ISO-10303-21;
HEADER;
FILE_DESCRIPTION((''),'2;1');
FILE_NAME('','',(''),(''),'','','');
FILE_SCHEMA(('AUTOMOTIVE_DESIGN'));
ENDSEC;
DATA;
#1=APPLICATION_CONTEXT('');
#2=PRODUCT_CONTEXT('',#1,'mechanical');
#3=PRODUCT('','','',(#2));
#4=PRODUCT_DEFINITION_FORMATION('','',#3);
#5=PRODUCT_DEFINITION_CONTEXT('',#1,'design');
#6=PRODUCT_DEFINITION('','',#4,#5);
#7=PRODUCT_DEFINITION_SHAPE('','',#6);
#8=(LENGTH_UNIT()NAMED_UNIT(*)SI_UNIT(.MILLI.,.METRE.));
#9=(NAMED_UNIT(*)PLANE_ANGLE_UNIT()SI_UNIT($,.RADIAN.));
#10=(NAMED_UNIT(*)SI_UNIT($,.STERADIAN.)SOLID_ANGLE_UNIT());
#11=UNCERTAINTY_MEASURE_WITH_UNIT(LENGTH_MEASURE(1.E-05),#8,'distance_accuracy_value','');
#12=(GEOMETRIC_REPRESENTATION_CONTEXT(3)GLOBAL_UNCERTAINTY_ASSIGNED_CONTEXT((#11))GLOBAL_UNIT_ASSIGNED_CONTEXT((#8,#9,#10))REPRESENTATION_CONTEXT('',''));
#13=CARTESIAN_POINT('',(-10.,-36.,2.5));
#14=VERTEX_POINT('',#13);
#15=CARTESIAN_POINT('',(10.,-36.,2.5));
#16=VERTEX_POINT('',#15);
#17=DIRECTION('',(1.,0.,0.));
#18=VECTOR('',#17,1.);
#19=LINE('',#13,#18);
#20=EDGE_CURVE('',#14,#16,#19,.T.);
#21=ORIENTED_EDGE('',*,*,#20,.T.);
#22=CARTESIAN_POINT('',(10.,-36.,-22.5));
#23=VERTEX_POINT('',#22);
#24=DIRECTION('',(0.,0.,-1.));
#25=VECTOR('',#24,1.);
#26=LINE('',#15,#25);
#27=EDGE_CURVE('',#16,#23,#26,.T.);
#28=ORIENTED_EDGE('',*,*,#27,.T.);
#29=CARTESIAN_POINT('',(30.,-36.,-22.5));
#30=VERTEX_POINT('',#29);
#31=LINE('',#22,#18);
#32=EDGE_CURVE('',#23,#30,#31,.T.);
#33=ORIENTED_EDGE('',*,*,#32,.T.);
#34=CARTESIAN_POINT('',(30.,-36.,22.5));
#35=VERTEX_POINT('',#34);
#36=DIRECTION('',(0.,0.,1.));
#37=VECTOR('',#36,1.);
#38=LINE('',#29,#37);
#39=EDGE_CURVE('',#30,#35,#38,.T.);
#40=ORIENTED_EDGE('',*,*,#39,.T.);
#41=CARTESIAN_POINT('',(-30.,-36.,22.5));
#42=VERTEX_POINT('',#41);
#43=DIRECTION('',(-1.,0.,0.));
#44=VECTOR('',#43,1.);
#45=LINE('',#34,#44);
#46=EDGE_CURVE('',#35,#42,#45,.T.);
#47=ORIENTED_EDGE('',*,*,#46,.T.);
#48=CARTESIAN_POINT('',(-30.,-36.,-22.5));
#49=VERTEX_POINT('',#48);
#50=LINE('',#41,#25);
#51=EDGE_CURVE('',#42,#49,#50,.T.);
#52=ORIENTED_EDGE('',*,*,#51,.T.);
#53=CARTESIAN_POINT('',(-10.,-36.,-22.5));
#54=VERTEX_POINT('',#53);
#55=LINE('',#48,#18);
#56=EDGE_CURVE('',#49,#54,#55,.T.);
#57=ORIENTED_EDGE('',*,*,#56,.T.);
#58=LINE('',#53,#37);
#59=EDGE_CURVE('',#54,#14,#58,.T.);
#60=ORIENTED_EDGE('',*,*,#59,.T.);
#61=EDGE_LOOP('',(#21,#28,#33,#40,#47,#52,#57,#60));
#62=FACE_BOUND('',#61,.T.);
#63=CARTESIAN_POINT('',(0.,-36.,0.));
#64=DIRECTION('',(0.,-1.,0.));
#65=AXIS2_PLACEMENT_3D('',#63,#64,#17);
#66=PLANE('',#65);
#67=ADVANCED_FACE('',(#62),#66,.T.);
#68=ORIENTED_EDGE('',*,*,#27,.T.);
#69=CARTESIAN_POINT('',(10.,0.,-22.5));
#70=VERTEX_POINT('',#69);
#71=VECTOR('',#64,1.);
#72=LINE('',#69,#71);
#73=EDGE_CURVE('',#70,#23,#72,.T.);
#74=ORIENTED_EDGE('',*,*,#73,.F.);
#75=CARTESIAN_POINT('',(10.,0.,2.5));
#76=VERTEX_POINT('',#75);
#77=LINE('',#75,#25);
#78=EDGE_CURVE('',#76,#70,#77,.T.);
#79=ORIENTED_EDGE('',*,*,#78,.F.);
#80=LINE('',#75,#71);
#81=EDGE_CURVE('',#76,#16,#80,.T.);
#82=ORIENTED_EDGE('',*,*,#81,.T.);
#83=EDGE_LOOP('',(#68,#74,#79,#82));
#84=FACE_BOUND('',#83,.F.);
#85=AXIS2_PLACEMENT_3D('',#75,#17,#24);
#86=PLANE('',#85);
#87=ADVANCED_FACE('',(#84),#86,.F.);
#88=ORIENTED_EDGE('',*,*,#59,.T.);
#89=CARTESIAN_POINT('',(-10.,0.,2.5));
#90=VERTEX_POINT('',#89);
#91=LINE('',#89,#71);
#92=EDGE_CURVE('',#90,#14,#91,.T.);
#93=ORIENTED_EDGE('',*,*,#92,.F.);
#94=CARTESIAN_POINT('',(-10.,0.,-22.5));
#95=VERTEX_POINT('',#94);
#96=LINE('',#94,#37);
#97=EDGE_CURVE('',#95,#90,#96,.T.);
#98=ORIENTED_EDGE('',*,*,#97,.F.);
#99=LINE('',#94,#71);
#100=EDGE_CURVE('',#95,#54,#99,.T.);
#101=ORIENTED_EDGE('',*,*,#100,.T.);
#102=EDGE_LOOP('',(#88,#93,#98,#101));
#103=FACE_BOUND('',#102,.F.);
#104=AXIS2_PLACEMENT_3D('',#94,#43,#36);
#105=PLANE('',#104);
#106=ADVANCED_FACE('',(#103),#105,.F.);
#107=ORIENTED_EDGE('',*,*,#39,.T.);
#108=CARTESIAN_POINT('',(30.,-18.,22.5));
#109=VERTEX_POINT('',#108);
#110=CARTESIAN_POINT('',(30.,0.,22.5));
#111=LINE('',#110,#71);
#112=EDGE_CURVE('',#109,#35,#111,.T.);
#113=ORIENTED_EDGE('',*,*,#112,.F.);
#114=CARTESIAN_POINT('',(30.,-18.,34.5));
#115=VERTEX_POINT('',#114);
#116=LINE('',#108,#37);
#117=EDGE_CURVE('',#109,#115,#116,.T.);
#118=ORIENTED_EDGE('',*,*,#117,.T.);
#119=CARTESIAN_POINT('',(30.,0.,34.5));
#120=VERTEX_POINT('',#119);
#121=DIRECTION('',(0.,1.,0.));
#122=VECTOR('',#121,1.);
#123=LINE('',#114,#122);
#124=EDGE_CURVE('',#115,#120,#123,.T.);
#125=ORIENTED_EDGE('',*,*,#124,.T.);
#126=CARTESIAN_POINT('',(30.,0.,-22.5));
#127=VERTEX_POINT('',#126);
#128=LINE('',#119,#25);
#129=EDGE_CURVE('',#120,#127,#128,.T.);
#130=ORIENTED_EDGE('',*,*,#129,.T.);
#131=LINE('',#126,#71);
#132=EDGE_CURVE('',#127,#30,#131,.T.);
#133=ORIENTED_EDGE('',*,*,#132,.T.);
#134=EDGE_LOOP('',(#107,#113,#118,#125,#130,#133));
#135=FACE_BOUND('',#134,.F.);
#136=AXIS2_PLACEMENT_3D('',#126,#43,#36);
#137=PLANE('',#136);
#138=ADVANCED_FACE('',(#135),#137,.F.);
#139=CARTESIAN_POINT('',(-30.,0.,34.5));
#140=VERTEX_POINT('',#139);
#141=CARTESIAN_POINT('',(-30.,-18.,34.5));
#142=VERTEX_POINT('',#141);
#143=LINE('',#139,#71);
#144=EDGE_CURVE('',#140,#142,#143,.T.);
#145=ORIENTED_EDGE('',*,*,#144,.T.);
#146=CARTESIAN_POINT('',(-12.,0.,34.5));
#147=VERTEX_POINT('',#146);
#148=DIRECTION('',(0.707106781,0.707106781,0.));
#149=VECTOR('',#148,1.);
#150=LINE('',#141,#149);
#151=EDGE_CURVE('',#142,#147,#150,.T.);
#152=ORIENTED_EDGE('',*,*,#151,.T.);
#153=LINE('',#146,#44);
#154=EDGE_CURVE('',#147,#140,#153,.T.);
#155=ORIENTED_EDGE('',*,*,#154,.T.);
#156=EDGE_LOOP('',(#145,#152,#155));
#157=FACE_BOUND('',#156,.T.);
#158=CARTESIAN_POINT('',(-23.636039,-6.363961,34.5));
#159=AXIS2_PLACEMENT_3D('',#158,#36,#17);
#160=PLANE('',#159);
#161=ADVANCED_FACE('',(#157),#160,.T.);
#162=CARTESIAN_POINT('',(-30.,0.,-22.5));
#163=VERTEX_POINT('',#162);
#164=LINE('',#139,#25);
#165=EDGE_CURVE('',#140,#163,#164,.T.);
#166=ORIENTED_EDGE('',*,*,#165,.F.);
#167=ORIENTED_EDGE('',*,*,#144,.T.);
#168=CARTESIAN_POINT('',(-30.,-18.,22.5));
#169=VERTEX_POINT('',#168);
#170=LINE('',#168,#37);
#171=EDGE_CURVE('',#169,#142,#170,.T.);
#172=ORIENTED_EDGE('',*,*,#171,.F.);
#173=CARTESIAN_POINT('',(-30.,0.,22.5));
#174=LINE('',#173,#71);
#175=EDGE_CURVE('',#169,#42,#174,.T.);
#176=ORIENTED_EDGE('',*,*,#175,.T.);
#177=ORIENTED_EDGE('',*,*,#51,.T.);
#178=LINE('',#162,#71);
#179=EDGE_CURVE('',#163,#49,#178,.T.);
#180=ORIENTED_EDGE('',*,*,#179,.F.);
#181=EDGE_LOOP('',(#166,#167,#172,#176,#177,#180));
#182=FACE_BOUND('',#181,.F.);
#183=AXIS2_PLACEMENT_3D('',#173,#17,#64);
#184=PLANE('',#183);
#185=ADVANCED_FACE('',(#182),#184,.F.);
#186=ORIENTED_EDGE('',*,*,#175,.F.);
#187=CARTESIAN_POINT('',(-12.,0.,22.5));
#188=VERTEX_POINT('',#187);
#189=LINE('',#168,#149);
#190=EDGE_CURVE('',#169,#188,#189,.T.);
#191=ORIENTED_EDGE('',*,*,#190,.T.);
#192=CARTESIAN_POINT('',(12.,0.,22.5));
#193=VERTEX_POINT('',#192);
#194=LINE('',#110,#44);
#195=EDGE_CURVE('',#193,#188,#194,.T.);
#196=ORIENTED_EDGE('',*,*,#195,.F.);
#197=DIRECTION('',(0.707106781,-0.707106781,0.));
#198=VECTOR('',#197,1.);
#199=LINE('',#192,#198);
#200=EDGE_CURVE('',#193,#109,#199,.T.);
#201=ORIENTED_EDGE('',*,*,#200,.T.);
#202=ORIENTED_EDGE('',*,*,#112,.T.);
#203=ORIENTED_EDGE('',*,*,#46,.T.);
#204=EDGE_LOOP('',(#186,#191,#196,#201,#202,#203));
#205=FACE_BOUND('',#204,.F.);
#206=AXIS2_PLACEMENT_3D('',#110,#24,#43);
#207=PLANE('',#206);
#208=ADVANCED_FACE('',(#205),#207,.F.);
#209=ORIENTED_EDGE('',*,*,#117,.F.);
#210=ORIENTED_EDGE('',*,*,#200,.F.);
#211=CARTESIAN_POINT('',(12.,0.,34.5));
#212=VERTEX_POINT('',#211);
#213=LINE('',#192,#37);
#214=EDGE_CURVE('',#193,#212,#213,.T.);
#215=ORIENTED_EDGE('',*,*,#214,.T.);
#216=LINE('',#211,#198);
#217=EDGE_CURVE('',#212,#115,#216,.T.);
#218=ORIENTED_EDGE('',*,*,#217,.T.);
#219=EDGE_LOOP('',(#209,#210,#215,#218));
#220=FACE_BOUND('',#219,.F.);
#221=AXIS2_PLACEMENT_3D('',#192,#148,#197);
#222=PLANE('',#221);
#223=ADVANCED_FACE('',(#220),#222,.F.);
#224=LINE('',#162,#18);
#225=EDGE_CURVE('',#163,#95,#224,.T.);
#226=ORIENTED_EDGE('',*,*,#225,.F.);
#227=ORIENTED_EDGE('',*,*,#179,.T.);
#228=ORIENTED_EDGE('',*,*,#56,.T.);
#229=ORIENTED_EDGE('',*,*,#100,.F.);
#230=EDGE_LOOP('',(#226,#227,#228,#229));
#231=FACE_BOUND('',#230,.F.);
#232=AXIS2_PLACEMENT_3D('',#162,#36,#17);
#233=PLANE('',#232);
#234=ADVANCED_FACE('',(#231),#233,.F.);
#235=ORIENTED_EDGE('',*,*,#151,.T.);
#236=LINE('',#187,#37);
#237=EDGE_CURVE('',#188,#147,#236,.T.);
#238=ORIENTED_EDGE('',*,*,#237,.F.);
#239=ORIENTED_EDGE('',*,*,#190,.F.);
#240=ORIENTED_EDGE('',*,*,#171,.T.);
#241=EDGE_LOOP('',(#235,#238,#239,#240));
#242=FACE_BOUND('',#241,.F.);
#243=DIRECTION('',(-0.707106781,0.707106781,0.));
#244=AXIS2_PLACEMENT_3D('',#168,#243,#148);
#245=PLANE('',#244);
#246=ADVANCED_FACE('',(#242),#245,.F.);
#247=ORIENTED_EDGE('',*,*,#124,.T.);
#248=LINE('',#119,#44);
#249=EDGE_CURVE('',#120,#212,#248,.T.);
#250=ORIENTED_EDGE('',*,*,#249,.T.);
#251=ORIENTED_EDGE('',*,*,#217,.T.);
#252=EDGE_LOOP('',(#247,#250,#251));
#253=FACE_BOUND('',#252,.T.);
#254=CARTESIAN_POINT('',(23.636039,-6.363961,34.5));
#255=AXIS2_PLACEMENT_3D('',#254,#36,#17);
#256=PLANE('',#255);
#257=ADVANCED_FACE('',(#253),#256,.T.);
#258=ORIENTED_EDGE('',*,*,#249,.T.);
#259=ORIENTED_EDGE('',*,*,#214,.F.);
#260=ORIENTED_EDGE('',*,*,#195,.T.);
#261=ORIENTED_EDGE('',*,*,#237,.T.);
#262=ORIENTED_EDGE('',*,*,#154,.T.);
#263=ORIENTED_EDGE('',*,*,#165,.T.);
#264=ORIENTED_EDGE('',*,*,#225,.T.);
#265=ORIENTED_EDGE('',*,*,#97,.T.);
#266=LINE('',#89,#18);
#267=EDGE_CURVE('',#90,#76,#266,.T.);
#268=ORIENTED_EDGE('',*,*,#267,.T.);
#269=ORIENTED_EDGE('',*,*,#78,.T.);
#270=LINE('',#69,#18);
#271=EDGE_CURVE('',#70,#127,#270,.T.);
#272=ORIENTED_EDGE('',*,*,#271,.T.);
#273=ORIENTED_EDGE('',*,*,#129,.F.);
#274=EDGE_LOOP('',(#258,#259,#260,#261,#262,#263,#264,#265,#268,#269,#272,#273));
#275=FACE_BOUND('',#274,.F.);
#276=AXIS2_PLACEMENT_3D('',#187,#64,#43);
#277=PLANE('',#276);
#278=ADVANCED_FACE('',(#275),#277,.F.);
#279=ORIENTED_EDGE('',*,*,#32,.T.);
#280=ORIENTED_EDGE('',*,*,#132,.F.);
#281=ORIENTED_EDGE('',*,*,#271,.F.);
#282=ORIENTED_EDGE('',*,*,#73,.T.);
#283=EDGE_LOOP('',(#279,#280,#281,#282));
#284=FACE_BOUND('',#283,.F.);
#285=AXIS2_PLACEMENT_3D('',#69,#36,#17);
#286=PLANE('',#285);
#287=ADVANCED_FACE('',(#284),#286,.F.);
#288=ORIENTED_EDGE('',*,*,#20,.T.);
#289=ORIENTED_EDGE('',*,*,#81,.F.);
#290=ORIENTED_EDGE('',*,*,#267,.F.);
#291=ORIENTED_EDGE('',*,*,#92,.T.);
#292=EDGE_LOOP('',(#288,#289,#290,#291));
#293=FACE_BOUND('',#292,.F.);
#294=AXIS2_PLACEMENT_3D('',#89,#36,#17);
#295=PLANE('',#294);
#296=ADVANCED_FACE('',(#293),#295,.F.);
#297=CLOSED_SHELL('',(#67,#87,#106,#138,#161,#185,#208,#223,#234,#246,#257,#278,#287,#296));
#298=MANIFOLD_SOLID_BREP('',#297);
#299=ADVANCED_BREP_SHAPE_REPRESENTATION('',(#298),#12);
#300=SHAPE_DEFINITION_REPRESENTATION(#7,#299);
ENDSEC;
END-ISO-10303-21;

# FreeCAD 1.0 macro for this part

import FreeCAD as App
import Part
import Sketcher
from FreeCAD import Vector
Q = App.Units.Quantity


def add_polygon(sketch, points):
    """Adds a closed chain of lines whose ends are joined by coincident constraints."""
    first, n = sketch.GeometryCount, len(points)
    for a, b in zip(points, points[1:] + points[:1]):
        sketch.addGeometry(Part.LineSegment(App.Vector(*a, 0), App.Vector(*b, 0)), False)
    for i in range(n):
        sketch.addConstraint(Sketcher.Constraint("Coincident", first + i, 2, first + (i + 1) % n, 1))

doc = App.newDocument("Part")
body = doc.addObject("PartDesign::Body", "Body")

sketch1 = doc.addObject("Sketcher::SketchObject", "Sketch")
body.addObject(sketch1)
sketch1.AttachmentSupport = (doc.XZ_Plane, [""])
sketch1.MapMode = "FlatFace"
add_polygon(sketch1, [(-30, 22.5), (-30, -22.5), (-10, -22.5), (-10, 2.5), (10, 2.5), (10, -22.5), (30, -22.5), (30, 22.5)])
sketch1.addConstraint([
    Sketcher.Constraint("Vertical", 0),
    Sketcher.Constraint("Horizontal", 1),
    Sketcher.Constraint("Vertical", 2),
    Sketcher.Constraint("Horizontal", 3),
    Sketcher.Constraint("Vertical", 4),
    Sketcher.Constraint("Horizontal", 5),
    Sketcher.Constraint("Vertical", 6),
    Sketcher.Constraint("Horizontal", 7),
    Sketcher.Constraint("Symmetric", 0, 2, 6, 2, -1, 1),
    Sketcher.Constraint("Symmetric", 1, 2, 4, 2, -2),
    Sketcher.Constraint("Equal", 1, 3),
    Sketcher.Constraint("DistanceX", 1, 1, 1, 2, Q("20 mm")),
    Sketcher.Constraint("DistanceY", 0, 2, 0, 1, Q("45 mm")),
    Sketcher.Constraint("DistanceY", 2, 1, 2, 2, Q("25 mm")),
])
pad1 = doc.addObject("PartDesign::Pad", "Pad")
body.addObject(pad1)
pad1.Profile = sketch1
pad1.Length = 36

sketch2 = doc.addObject("Sketcher::SketchObject", "Sketch001")
body.addObject(sketch2)
sketch2.AttachmentSupport = (doc.XY_Plane, [""])
sketch2.MapMode = "FlatFace"
sketch2.AttachmentOffset = App.Placement(Vector(0, 0, 22.5), App.Rotation())
add_polygon(sketch2, [(-30, -18), (-12, 0), (-30, 0)])
add_polygon(sketch2, [(30, 0), (12, 0), (30, -18)])
sketch2.addConstraint([
    Sketcher.Constraint("Horizontal", 1),
    Sketcher.Constraint("Vertical", 2),
    Sketcher.Constraint("Horizontal", 3),
    Sketcher.Constraint("Vertical", 5),
    Sketcher.Constraint("Symmetric", 0, 2, 3, 2, -1, 1),
    Sketcher.Constraint("Symmetric", 2, 2, 4, 2, -2),
    Sketcher.Constraint("PointOnObject", 0, 2, -1),
    Sketcher.Constraint("Perpendicular", 0, 4),
    Sketcher.Constraint("DistanceX", 1, 2, 1, 1, Q("18 mm")),
    Sketcher.Constraint("DistanceX", 0, 2, -1, 1, Q("12 mm")),
])
pad2 = doc.addObject("PartDesign::Pad", "Pad001")
body.addObject(pad2)
pad2.Profile = sketch2
pad2.Length = 12

doc.recompute()
